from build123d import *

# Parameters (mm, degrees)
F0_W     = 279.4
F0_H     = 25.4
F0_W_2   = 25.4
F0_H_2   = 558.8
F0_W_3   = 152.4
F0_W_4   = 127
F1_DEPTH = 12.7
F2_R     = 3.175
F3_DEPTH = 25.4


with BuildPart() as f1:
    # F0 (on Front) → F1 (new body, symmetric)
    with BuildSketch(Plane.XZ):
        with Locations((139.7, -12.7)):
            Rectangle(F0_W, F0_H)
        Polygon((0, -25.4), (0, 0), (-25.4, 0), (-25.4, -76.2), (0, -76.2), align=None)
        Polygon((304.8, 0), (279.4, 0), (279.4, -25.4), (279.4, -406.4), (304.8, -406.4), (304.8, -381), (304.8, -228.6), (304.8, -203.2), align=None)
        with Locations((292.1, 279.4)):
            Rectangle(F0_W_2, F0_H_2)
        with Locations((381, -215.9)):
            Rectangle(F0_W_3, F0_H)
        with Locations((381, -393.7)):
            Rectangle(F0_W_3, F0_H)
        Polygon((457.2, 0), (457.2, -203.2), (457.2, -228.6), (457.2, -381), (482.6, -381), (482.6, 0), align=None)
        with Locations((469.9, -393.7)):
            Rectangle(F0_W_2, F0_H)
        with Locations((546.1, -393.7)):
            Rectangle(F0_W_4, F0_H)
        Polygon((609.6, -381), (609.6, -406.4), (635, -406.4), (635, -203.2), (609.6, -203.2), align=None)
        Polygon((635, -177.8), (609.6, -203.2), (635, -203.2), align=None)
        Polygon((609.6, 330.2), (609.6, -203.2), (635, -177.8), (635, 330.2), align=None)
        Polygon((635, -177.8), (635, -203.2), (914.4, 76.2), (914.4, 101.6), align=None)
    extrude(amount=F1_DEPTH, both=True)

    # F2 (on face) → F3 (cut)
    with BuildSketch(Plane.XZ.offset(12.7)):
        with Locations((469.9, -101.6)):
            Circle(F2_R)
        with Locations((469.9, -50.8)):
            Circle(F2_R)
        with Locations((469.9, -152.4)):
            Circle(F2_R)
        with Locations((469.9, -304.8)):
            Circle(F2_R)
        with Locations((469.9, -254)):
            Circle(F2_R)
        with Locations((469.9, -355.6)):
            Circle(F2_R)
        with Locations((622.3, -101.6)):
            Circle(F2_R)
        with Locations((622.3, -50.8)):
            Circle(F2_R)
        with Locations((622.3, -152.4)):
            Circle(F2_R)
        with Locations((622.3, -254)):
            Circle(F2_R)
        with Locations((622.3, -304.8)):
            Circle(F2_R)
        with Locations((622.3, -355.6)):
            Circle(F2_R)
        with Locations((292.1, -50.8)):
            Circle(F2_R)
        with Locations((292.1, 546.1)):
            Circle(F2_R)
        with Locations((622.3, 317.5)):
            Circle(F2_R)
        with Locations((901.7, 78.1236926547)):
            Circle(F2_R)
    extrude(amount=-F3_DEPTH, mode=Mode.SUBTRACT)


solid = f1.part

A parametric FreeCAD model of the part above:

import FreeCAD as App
import Part
import Sketcher

V = App.Vector
Q = App.Units.Quantity

doc = App.newDocument("Part")
params = doc.addObject("Spreadsheet::Sheet", "Params")
for row, (alias, value) in enumerate([
    ("sketch1_width", "14 in"),
    ("sketch1_width2", "1 in"),
    ("sketch1_width3", "5 in"),
    ("sketch1_width4", "12 in"),
    ("sketch1_height", "8 in"),
    ("pad1_length", "1 in"),
    ("sketch2_diameter", "0.25 in"),
    ("pocket1_length", "1 in"),
], start=1):
    params.set(f"A{row}", alias)
    params.set(f"B{row}", "=" + value)
    params.setAlias(f"B{row}", alias)

body = doc.addObject("PartDesign::Body", "Body")

# Sketch on XZ plane
sketch1 = doc.addObject("Sketcher::SketchObject", "Sketch")
body.addObject(sketch1)
sketch1.AttachmentSupport = (doc.XZ_Plane, [""])
sketch1.MapMode = "FlatFace"
sketch1.addGeometry(Part.LineSegment(V(279, -406, 0), V(635, -406, 0)), False)
sketch1.addGeometry(Part.LineSegment(V(635, -406, 0), V(635, -203, 0)), False)
sketch1.addGeometry(Part.LineSegment(V(635, -203, 0), V(914, 76, 0)), False)
sketch1.addGeometry(Part.LineSegment(V(914, 76, 0), V(914, 102, 0)), False)
sketch1.addGeometry(Part.LineSegment(V(914, 102, 0), V(635, -178, 0)), False)
sketch1.addGeometry(Part.LineSegment(V(635, -178, 0), V(635, 330, 0)), False)
sketch1.addGeometry(Part.LineSegment(V(635, 330, 0), V(610, 330, 0)), False)
sketch1.addGeometry(Part.LineSegment(V(610, 330, 0), V(610, -381, 0)), False)
sketch1.addGeometry(Part.LineSegment(V(610, -381, 0), V(483, -381, 0)), False)
sketch1.addGeometry(Part.LineSegment(V(483, -381, 0), V(483, 0, 0)), False)
sketch1.addGeometry(Part.LineSegment(V(483, 0, 0), V(457, 0, 0)), False)
sketch1.addGeometry(Part.LineSegment(V(457, 0, 0), V(457, -203, 0)), False)
sketch1.addGeometry(Part.LineSegment(V(457, -203, 0), V(305, -203, 0)), False)
sketch1.addGeometry(Part.LineSegment(V(305, -203, 0), V(305, 559, 0)), False)
sketch1.addGeometry(Part.LineSegment(V(305, 559, 0), V(279, 559, 0)), False)
sketch1.addGeometry(Part.LineSegment(V(279, 559, 0), V(279, 0, 0)), False)
sketch1.addGeometry(Part.LineSegment(V(279, 0, 0), V(-25, 0, 0)), False)
sketch1.addGeometry(Part.LineSegment(V(-25, 0, 0), V(-25, -76, 0)), False)
sketch1.addGeometry(Part.LineSegment(V(-25, -76, 0), V(0, -76, 0)), False)
sketch1.addGeometry(Part.LineSegment(V(0, -76, 0), V(0, -25, 0)), False)
sketch1.addGeometry(Part.LineSegment(V(0, -25, 0), V(279, -25, 0)), False)
sketch1.addGeometry(Part.LineSegment(V(279, -25, 0), V(279, -406, 0)), False)
sketch1.addGeometry(Part.LineSegment(V(457, -381, 0), V(305, -381, 0)), False)
sketch1.addGeometry(Part.LineSegment(V(305, -381, 0), V(305, -229, 0)), False)
sketch1.addGeometry(Part.LineSegment(V(305, -229, 0), V(457, -229, 0)), False)
sketch1.addGeometry(Part.LineSegment(V(457, -229, 0), V(457, -381, 0)), False)
sketch1.addConstraint(Sketcher.Constraint("Coincident", 0, 2, 1, 1))
sketch1.addConstraint(Sketcher.Constraint("Coincident", 1, 2, 2, 1))
sketch1.addConstraint(Sketcher.Constraint("Coincident", 2, 2, 3, 1))
sketch1.addConstraint(Sketcher.Constraint("Coincident", 3, 2, 4, 1))
sketch1.addConstraint(Sketcher.Constraint("Coincident", 4, 2, 5, 1))
sketch1.addConstraint(Sketcher.Constraint("Coincident", 5, 2, 6, 1))
sketch1.addConstraint(Sketcher.Constraint("Coincident", 6, 2, 7, 1))
sketch1.addConstraint(Sketcher.Constraint("Coincident", 7, 2, 8, 1))
sketch1.addConstraint(Sketcher.Constraint("Coincident", 8, 2, 9, 1))
sketch1.addConstraint(Sketcher.Constraint("Coincident", 9, 2, 10, 1))
sketch1.addConstraint(Sketcher.Constraint("Coincident", 10, 2, 11, 1))
sketch1.addConstraint(Sketcher.Constraint("Coincident", 11, 2, 12, 1))
sketch1.addConstraint(Sketcher.Constraint("Coincident", 12, 2, 13, 1))
sketch1.addConstraint(Sketcher.Constraint("Coincident", 13, 2, 14, 1))
sketch1.addConstraint(Sketcher.Constraint("Coincident", 14, 2, 15, 1))
sketch1.addConstraint(Sketcher.Constraint("Coincident", 15, 2, 16, 1))
sketch1.addConstraint(Sketcher.Constraint("Coincident", 16, 2, 17, 1))
sketch1.addConstraint(Sketcher.Constraint("Coincident", 17, 2, 18, 1))
sketch1.addConstraint(Sketcher.Constraint("Coincident", 18, 2, 19, 1))
sketch1.addConstraint(Sketcher.Constraint("Coincident", 19, 2, 20, 1))
sketch1.addConstraint(Sketcher.Constraint("Coincident", 20, 2, 21, 1))
sketch1.addConstraint(Sketcher.Constraint("Coincident", 21, 2, 0, 1))
sketch1.addConstraint(Sketcher.Constraint("Coincident", 22, 2, 23, 1))
sketch1.addConstraint(Sketcher.Constraint("Coincident", 23, 2, 24, 1))
sketch1.addConstraint(Sketcher.Constraint("Coincident", 24, 2, 25, 1))
sketch1.addConstraint(Sketcher.Constraint("Coincident", 25, 2, 22, 1))
sketch1.addConstraint(Sketcher.Constraint("Horizontal", 0))
sketch1.addConstraint(Sketcher.Constraint("Vertical", 1))
sketch1.addConstraint(Sketcher.Constraint("Vertical", 3))
sketch1.addConstraint(Sketcher.Constraint("Vertical", 5))
sketch1.addConstraint(Sketcher.Constraint("Horizontal", 6))
sketch1.addConstraint(Sketcher.Constraint("Vertical", 7))
sketch1.addConstraint(Sketcher.Constraint("Horizontal", 8))
sketch1.addConstraint(Sketcher.Constraint("Vertical", 9))
sketch1.addConstraint(Sketcher.Constraint("Horizontal", 10))
sketch1.addConstraint(Sketcher.Constraint("Vertical", 11))
sketch1.addConstraint(Sketcher.Constraint("Horizontal", 12))
sketch1.addConstraint(Sketcher.Constraint("Vertical", 13))
sketch1.addConstraint(Sketcher.Constraint("Horizontal", 14))
sketch1.addConstraint(Sketcher.Constraint("Vertical", 15))
sketch1.addConstraint(Sketcher.Constraint("Horizontal", 16))
sketch1.addConstraint(Sketcher.Constraint("Vertical", 17))
sketch1.addConstraint(Sketcher.Constraint("Horizontal", 18))
sketch1.addConstraint(Sketcher.Constraint("Vertical", 19))
sketch1.addConstraint(Sketcher.Constraint("Horizontal", 20))
sketch1.addConstraint(Sketcher.Constraint("Vertical", 21))
sketch1.addConstraint(Sketcher.Constraint("Horizontal", 22))
sketch1.addConstraint(Sketcher.Constraint("Vertical", 23))
sketch1.addConstraint(Sketcher.Constraint("Horizontal", 24))
sketch1.addConstraint(Sketcher.Constraint("Vertical", 25))
sketch1.addConstraint(Sketcher.Constraint("PointOnObject", 9, 2, -1))
sketch1.addConstraint(Sketcher.Constraint("PointOnObject", 15, 2, -1))
sketch1.addConstraint(Sketcher.Constraint("PointOnObject", 18, 2, -2))
sketch1.addConstraint(Sketcher.Constraint("Parallel", 2, 4))
sketch1.addConstraint(Sketcher.Constraint("Horizontal", 1, 2, 11, 2))
sketch1.addConstraint(Sketcher.Constraint("Horizontal", 8, 2, 22, 2))
sketch1.addConstraint(Sketcher.Constraint("Vertical", 1, 2, 4, 2))
sketch1.addConstraint(Sketcher.Constraint("Vertical", 15, 2, 20, 2))
sketch1.addConstraint(Sketcher.Constraint("Vertical", 13, 2, 22, 2))
sketch1.addConstraint(Sketcher.Constraint("Vertical", 11, 2, 24, 2))
sketch1.addConstraint(Sketcher.Constraint("Equal", 6, 10))
sketch1.addConstraint(Sketcher.Constraint("Equal", 10, 14))
sketch1.addConstraint(Sketcher.Constraint("Equal", 14, 18))
sketch1.addConstraint(Sketcher.Constraint("Equal", 18, 3))
sketch1.addConstraint(Sketcher.Constraint("Equal", 1, 11))
sketch1.addConstraint(Sketcher.Constraint("Equal", 9, 21))
sketch1.addConstraint(Sketcher.Constraint("Equal", 24, 23))
sketch1.addConstraint(Sketcher.Constraint("DistanceX", 0, 1, 0, 2, Q("14 in")))
sketch1.addConstraint(Sketcher.Constraint("DistanceX", 6, 2, 6, 1, Q("1 in")))
sketch1.addConstraint(Sketcher.Constraint("DistanceX", 8, 2, 8, 1, Q("5 in")))
sketch1.addConstraint(Sketcher.Constraint("DistanceX", 16, 2, 16, 1, Q("12 in")))
sketch1.addConstraint(Sketcher.Constraint("DistanceY", 1, 1, 1, 2, Q("8 in")))
sketch1.addConstraint(Sketcher.Constraint("DistanceY", 5, 1, 5, 2, Q("20 in")))
sketch1.addConstraint(Sketcher.Constraint("DistanceY", 7, 2, 7, 1, Q("28 in")))
sketch1.addConstraint(Sketcher.Constraint("DistanceY", 13, 1, 13, 2, Q("30 in")))
sketch1.addConstraint(Sketcher.Constraint("DistanceY", 17, 2, 17, 1, Q("3 in")))
sketch1.addConstraint(Sketcher.Constraint("DistanceX", -1, 1, 2, 2, Q("36 in")))
sketch1.addConstraint(Sketcher.Constraint("DistanceY", -1, 1, 2, 2, Q("3 in")))
sketch1.setExpression("Constraints[67]", "Params.sketch1_width")
sketch1.setExpression("Constraints[68]", "Params.sketch1_width2")
sketch1.setExpression("Constraints[69]", "Params.sketch1_width3")
sketch1.setExpression("Constraints[70]", "Params.sketch1_width4")
sketch1.setExpression("Constraints[71]", "Params.sketch1_height")
pad1 = doc.addObject("PartDesign::Pad", "Pad")
body.addObject(pad1)
pad1.Profile = sketch1
pad1.setExpression("Length", "Params.pad1_length")
pad1.Midplane = True

# Sketch on XZ plane
sketch2 = doc.addObject("Sketcher::SketchObject", "Sketch001")
body.addObject(sketch2)
sketch2.AttachmentSupport = (doc.XZ_Plane, [""])
sketch2.MapMode = "FlatFace"
sketch2.AttachmentOffset = App.Placement(V(0, 0, 0.5 * 25.4), App.Rotation())
sketch2.addGeometry(Part.Circle(V(469.9, -101.6, 0), V(0, 0, 1), 3.2), False)
sketch2.addGeometry(Part.Circle(V(469.9, -50.8, 0), V(0, 0, 1), 3.2), False)
sketch2.addGeometry(Part.Circle(V(469.9, -152.4, 0), V(0, 0, 1), 3.2), False)
sketch2.addGeometry(Part.Circle(V(469.9, -304.8, 0), V(0, 0, 1), 3.2), False)
sketch2.addGeometry(Part.Circle(V(469.9, -254, 0), V(0, 0, 1), 3.2), False)
sketch2.addGeometry(Part.Circle(V(469.9, -355.6, 0), V(0, 0, 1), 3.2), False)
sketch2.addGeometry(Part.Circle(V(622.3, -101.6, 0), V(0, 0, 1), 3.2), False)
sketch2.addGeometry(Part.Circle(V(622.3, -50.8, 0), V(0, 0, 1), 3.2), False)
sketch2.addGeometry(Part.Circle(V(622.3, -152.4, 0), V(0, 0, 1), 3.2), False)
sketch2.addGeometry(Part.Circle(V(622.3, -254, 0), V(0, 0, 1), 3.2), False)
sketch2.addGeometry(Part.Circle(V(622.3, -304.8, 0), V(0, 0, 1), 3.2), False)
sketch2.addGeometry(Part.Circle(V(622.3, -355.6, 0), V(0, 0, 1), 3.2), False)
sketch2.addGeometry(Part.Circle(V(292.1, -50.8, 0), V(0, 0, 1), 3.2), False)
sketch2.addGeometry(Part.Circle(V(292.1, 546.1, 0), V(0, 0, 1), 3.2), False)
sketch2.addGeometry(Part.Circle(V(622.3, 317.5, 0), V(0, 0, 1), 3.2), False)
sketch2.addGeometry(Part.Circle(V(901.7, 78.1, 0), V(0, 0, 1), 3.2), False)
sketch2.addConstraint(Sketcher.Constraint("Equal", 0, 1))
sketch2.addConstraint(Sketcher.Constraint("Equal", 1, 2))
sketch2.addConstraint(Sketcher.Constraint("Equal", 2, 3))
sketch2.addConstraint(Sketcher.Constraint("Equal", 3, 4))
sketch2.addConstraint(Sketcher.Constraint("Equal", 4, 5))
sketch2.addConstraint(Sketcher.Constraint("Equal", 5, 6))
sketch2.addConstraint(Sketcher.Constraint("Equal", 6, 7))
sketch2.addConstraint(Sketcher.Constraint("Equal", 7, 8))
sketch2.addConstraint(Sketcher.Constraint("Equal", 8, 9))
sketch2.addConstraint(Sketcher.Constraint("Equal", 9, 10))
sketch2.addConstraint(Sketcher.Constraint("Equal", 10, 11))
sketch2.addConstraint(Sketcher.Constraint("Equal", 11, 12))
sketch2.addConstraint(Sketcher.Constraint("Equal", 12, 13))
sketch2.addConstraint(Sketcher.Constraint("Equal", 13, 14))
sketch2.addConstraint(Sketcher.Constraint("Equal", 14, 15))
sketch2.addConstraint(Sketcher.Constraint("Horizontal", 0, 3, 6, 3))
sketch2.addConstraint(Sketcher.Constraint("Horizontal", 1, 3, 7, 3))
sketch2.addConstraint(Sketcher.Constraint("Horizontal", 2, 3, 8, 3))
sketch2.addConstraint(Sketcher.Constraint("Horizontal", 4, 3, 9, 3))
sketch2.addConstraint(Sketcher.Constraint("Horizontal", 3, 3, 10, 3))
sketch2.addConstraint(Sketcher.Constraint("Horizontal", 5, 3, 11, 3))
sketch2.addConstraint(Sketcher.Constraint("Horizontal", 7, 3, 12, 3))
sketch2.addConstraint(Sketcher.Constraint("Vertical", 0, 3, 1, 3))
sketch2.addConstraint(Sketcher.Constraint("Vertical", 1, 3, 2, 3))
sketch2.addConstraint(Sketcher.Constraint("Vertical", 2, 3, 3, 3))
sketch2.addConstraint(Sketcher.Constraint("Vertical", 3, 3, 4, 3))
sketch2.addConstraint(Sketcher.Constraint("Vertical", 4, 3, 5, 3))
sketch2.addConstraint(Sketcher.Constraint("Vertical", 6, 3, 7, 3))
sketch2.addConstraint(Sketcher.Constraint("Vertical", 7, 3, 8, 3))
sketch2.addConstraint(Sketcher.Constraint("Vertical", 8, 3, 9, 3))
sketch2.addConstraint(Sketcher.Constraint("Vertical", 9, 3, 10, 3))
sketch2.addConstraint(Sketcher.Constraint("Vertical", 10, 3, 11, 3))
sketch2.addConstraint(Sketcher.Constraint("Vertical", 12, 3, 13, 3))
sketch2.addConstraint(Sketcher.Constraint("Vertical", 11, 3, 14, 3))
sketch2.addConstraint(Sketcher.Constraint("Diameter", 0, Q("0.25 in")))
sketch2.addConstraint(Sketcher.Constraint("DistanceY", 0, 3, -1, 1, Q("4 in")))
sketch2.addConstraint(Sketcher.Constraint("DistanceY", 1, 3, -1, 1, Q("2 in")))
sketch2.addConstraint(Sketcher.Constraint("DistanceY", 2, 3, -1, 1, Q("6 in")))
sketch2.addConstraint(Sketcher.Constraint("DistanceY", 3, 3, -1, 1, Q("12 in")))
sketch2.addConstraint(Sketcher.Constraint("DistanceY", 4, 3, -1, 1, Q("10 in")))
sketch2.addConstraint(Sketcher.Constraint("DistanceY", 5, 3, -1, 1, Q("14 in")))
sketch2.addConstraint(Sketcher.Constraint("DistanceX", 0, 3, 6, 3, Q("6 in")))
sketch2.addConstraint(Sketcher.Constraint("DistanceX", 12, 3, 1, 3, Q("7 in")))
sketch2.addConstraint(Sketcher.Constraint("DistanceY", 14, 3, 13, 3, Q("9 in")))
sketch2.addConstraint(Sketcher.Constraint("DistanceX", 7, 3, 15, 3, Q("11 in")))
sketch2.addConstraint(Sketcher.Constraint("DistanceX", -1, 1, 0, 3, Q("18.5 in")))
sketch2.addConstraint(Sketcher.Constraint("DistanceY", -1, 1, 13, 3, Q("21.5 in")))
sketch2.addConstraint(Sketcher.Constraint("DistanceY", -1, 1, 15, 3, Q("78.123693 mm")))
sketch2.setExpression("Constraints[34]", "Params.sketch2_diameter")
pocket1 = doc.addObject("PartDesign::Pocket", "Pocket")
body.addObject(pocket1)
pocket1.Profile = sketch2
pocket1.setExpression("Length", "Params.pocket1_length")

doc.recompute()
